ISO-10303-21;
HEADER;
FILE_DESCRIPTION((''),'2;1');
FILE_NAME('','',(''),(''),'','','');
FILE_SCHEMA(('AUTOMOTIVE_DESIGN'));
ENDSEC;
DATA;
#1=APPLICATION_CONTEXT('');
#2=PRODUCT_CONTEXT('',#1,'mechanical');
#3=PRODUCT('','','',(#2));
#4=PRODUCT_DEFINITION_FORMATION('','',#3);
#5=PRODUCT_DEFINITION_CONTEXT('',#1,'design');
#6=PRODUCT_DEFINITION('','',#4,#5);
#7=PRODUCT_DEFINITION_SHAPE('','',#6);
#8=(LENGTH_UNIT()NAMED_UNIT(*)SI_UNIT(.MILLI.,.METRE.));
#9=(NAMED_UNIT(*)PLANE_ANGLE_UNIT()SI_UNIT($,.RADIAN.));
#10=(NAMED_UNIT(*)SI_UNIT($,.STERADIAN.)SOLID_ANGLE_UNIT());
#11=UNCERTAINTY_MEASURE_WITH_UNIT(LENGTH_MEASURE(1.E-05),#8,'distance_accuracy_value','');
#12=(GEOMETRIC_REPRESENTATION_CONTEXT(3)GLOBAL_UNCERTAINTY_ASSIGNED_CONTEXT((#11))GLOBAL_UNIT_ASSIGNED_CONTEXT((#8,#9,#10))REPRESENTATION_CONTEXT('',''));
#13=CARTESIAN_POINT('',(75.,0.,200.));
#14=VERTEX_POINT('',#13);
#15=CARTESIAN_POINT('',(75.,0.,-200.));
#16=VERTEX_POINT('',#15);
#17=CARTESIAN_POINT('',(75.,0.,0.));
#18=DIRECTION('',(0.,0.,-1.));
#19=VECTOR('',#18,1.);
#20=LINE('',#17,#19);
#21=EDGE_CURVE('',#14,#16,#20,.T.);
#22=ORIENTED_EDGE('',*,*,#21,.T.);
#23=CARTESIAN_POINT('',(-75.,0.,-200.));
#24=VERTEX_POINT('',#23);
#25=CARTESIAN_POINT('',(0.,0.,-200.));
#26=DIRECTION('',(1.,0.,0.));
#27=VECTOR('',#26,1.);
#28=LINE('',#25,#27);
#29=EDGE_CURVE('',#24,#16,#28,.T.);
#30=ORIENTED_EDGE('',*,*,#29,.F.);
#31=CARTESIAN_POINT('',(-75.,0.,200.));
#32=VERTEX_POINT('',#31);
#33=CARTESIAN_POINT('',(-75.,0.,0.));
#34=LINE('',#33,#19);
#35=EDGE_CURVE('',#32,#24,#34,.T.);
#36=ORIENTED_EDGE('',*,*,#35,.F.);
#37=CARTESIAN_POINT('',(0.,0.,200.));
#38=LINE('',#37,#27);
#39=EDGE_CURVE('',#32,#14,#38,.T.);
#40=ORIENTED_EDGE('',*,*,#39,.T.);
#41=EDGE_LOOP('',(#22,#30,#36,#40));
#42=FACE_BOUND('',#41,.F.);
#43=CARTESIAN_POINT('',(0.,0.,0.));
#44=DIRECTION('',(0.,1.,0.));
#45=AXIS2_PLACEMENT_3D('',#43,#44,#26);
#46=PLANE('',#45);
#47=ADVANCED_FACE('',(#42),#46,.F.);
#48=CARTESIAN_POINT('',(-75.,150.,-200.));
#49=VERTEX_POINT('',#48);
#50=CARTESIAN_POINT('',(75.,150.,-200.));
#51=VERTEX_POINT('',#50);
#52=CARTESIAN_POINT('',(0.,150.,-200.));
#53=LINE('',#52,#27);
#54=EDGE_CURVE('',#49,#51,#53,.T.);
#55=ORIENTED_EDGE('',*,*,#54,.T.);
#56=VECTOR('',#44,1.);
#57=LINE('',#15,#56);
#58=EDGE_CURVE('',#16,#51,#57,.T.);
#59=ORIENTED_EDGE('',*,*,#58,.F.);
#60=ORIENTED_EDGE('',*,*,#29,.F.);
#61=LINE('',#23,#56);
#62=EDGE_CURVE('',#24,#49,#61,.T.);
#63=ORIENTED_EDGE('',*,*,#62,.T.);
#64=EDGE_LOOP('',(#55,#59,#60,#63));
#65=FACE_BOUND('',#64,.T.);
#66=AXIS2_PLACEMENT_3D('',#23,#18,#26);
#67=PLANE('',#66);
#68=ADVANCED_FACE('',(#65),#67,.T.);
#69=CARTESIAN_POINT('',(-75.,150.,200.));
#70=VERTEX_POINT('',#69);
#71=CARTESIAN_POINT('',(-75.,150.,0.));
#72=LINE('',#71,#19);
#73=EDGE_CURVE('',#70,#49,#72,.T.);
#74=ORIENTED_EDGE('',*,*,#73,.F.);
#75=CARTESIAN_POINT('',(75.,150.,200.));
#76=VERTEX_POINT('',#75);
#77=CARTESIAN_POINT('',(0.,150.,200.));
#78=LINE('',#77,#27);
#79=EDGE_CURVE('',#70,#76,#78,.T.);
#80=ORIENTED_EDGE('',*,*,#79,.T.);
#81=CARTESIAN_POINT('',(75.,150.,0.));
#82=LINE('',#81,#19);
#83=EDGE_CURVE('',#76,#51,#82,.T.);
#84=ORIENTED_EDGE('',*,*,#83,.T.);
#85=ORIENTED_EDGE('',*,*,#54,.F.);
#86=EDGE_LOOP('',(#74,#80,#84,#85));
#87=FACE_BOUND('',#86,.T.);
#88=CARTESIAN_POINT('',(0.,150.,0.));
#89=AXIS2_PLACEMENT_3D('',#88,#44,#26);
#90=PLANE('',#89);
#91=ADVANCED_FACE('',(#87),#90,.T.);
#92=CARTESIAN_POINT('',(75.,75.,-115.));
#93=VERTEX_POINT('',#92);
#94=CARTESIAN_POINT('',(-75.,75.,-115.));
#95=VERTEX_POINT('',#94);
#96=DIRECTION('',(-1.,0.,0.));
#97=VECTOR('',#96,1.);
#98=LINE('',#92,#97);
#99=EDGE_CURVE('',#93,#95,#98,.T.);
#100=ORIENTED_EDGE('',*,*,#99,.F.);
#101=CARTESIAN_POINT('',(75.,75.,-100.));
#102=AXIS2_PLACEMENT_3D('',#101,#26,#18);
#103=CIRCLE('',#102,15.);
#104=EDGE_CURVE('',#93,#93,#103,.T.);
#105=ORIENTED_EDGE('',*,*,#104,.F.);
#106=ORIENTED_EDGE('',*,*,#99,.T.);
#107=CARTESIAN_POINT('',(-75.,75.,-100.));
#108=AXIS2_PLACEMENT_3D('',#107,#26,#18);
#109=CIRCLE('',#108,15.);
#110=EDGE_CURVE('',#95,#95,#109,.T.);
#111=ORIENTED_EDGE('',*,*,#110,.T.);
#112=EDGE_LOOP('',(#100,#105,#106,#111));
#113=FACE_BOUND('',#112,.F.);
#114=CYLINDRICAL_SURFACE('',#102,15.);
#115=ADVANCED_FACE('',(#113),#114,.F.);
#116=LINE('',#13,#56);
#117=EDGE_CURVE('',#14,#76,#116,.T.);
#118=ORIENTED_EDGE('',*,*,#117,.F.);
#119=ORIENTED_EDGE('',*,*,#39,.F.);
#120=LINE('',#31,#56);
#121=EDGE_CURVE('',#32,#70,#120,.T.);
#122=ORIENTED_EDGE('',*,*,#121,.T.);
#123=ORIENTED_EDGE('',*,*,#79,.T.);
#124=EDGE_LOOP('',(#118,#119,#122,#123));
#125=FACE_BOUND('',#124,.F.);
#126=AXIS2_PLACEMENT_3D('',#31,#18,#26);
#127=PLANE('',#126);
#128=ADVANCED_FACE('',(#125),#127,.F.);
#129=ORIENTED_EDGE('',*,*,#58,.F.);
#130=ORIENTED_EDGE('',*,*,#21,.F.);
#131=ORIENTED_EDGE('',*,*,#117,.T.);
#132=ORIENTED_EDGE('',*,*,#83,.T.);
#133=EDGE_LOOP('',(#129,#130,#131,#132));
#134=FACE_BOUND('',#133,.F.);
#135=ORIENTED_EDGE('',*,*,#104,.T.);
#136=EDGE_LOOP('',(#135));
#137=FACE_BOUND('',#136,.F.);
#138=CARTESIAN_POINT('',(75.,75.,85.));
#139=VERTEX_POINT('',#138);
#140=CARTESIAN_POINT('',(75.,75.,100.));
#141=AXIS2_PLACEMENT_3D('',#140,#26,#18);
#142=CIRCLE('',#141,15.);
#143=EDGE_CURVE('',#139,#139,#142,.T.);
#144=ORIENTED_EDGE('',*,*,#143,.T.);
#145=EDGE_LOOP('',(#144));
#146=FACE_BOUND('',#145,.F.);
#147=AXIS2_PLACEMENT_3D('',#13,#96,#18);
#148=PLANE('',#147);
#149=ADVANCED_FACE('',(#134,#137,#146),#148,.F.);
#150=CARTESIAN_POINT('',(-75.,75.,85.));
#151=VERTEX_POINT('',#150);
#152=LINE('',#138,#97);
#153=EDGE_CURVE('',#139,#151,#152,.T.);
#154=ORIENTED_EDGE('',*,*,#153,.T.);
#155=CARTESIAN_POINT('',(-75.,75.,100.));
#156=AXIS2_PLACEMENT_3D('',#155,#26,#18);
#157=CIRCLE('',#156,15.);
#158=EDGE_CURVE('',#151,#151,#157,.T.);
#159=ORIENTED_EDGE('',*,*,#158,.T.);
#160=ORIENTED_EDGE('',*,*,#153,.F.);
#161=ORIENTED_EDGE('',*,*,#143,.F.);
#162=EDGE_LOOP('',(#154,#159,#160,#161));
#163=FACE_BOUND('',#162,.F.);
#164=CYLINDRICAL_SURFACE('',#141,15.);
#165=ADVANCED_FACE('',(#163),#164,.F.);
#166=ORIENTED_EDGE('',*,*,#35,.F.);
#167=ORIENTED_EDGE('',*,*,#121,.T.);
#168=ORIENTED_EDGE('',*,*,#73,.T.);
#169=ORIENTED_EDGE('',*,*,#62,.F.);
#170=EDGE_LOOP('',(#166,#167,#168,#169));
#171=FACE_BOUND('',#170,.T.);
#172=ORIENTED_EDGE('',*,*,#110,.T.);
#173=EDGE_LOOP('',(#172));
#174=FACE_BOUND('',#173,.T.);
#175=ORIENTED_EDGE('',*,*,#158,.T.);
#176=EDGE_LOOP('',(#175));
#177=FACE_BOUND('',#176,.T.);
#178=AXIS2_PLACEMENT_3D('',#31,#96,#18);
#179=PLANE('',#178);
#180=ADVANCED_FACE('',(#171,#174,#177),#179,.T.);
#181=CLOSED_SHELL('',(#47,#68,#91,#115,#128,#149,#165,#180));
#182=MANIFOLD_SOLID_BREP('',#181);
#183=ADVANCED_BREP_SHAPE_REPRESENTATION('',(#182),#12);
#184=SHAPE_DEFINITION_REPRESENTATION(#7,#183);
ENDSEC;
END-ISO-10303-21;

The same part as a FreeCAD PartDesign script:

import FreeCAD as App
import Part
import Sketcher
Q = App.Units.Quantity


def add_polygon(sketch, points):
    """Adds a closed chain of lines whose ends are joined by coincident constraints."""
    first, n = sketch.GeometryCount, len(points)
    for a, b in zip(points, points[1:] + points[:1]):
        sketch.addGeometry(Part.LineSegment(App.Vector(*a, 0), App.Vector(*b, 0)), False)
    for i in range(n):
        sketch.addConstraint(Sketcher.Constraint("Coincident", first + i, 2, first + (i + 1) % n, 1))

doc = App.newDocument("Part")
body = doc.addObject("PartDesign::Body", "Body")

# Sketch on XZ plane
sketch1 = doc.addObject("Sketcher::SketchObject", "Sketch")
body.addObject(sketch1)
sketch1.AttachmentSupport = (doc.XZ_Plane, [""])
sketch1.MapMode = "FlatFace"
add_polygon(sketch1, [(-75, -200), (-75, 200), (75, 200), (75, -200)])  # lines 0-3
sketch1.addConstraint([
    Sketcher.Constraint("Vertical", 0),
    Sketcher.Constraint("Horizontal", 1),
    Sketcher.Constraint("Vertical", 2),
    Sketcher.Constraint("Horizontal", 3),
    Sketcher.Constraint("Symmetric", 0, 2, 2, 2, -1, 1),
    Sketcher.Constraint("DistanceX", 1, 1, 1, 2, Q("150 mm")),
    Sketcher.Constraint("DistanceY", 0, 1, 0, 2, Q("400 mm")),
])
pad1 = doc.addObject("PartDesign::Pad", "Pad")
body.addObject(pad1)
pad1.Profile = sketch1
pad1.Length = 150
pad1.Reversed = True

# Sketch on YZ plane
sketch2 = doc.addObject("Sketcher::SketchObject", "Sketch001")
body.addObject(sketch2)
sketch2.AttachmentSupport = (doc.YZ_Plane, [""])
sketch2.MapMode = "FlatFace"
sketch2.AttachmentOffset = App.Placement(App.Vector(0, 0, 75), App.Rotation())
sketch2.addGeometry([
    Part.Circle(App.Vector(75, 100, 0), App.Vector(0, 0, 1), 15),
    Part.Circle(App.Vector(75, -100, 0), App.Vector(0, 0, 1), 15),
], False)
sketch2.addConstraint([
    Sketcher.Constraint("Equal", 0, 1),
    Sketcher.Constraint("Symmetric", 0, 3, 1, 3, -1),
    Sketcher.Constraint("Diameter", 0, Q("30 mm")),
    Sketcher.Constraint("DistanceX", -1, 1, 0, 3, Q("75 mm")),
    Sketcher.Constraint("DistanceY", -1, 1, 0, 3, Q("100 mm")),
])
pocket1 = doc.addObject("PartDesign::Pocket", "Pocket")
body.addObject(pocket1)
pocket1.Profile = sketch2
pocket1.Type = "ThroughAll"

doc.recompute()
